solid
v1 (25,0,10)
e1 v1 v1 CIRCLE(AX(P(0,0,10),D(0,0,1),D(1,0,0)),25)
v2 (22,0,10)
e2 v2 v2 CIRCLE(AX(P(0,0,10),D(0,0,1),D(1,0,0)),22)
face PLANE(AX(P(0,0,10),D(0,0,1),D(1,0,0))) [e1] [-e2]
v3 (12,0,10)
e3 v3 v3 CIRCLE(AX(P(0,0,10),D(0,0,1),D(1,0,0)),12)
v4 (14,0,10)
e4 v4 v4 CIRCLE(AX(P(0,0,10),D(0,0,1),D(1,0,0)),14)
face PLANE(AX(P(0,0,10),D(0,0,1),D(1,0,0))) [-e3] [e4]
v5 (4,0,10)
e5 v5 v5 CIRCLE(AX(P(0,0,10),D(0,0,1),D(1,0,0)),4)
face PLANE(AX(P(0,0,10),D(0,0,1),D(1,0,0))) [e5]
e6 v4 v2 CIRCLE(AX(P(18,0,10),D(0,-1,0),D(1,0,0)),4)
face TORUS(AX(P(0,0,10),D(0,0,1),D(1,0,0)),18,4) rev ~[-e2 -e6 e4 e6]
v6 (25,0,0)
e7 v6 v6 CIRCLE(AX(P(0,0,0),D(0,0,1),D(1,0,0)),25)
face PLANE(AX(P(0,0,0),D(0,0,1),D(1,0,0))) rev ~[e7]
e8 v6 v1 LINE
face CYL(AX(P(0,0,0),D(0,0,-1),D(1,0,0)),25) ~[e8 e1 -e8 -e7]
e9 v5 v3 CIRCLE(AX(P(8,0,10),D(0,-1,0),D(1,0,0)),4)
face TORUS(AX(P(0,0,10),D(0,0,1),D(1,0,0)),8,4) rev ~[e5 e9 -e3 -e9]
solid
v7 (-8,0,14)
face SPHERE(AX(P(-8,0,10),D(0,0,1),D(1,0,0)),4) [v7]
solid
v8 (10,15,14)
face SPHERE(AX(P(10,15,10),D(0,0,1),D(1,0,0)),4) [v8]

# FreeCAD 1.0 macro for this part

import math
import FreeCAD as App
import Part
import Sketcher
from FreeCAD import Vector

doc = App.newDocument("Part")
body = doc.addObject("PartDesign::Body", "Body")

# Sketch on XZ plane
sketch1 = doc.addObject("Sketcher::SketchObject", "Sketch")
body.addObject(sketch1)
sketch1.AttachmentSupport = (doc.XZ_Plane, [""])
sketch1.MapMode = "FlatFace"
sketch1.addGeometry(Part.Circle(Vector(18, 0, 0), Vector(0, 0, 1), 4), False)
sketch1.addConstraint([
    Sketcher.Constraint("PointOnObject", 0, 3, -1),
    Sketcher.Constraint("Diameter", 0, 8.0),
    Sketcher.Constraint("DistanceX", -1, 1, 0, 3, 18.0),
])
revolution = doc.addObject("PartDesign::Revolution", "Revolution")
body.addObject(revolution)
revolution.Profile = sketch1
revolution.ReferenceAxis = (sketch1, ["V_Axis"])
revolution.Angle = 360
body2 = doc.addObject("PartDesign::Body", "Body001")
body2.AllowCompound = True

# Sketch on XZ plane
sketch2 = doc.addObject("Sketcher::SketchObject", "Sketch001")
body2.addObject(sketch2)
sketch2.AttachmentSupport = (doc.getObject("XZ_Plane001"), [""])
sketch2.MapMode = "FlatFace"
sketch2.addGeometry(Part.Circle(Vector(8, 0, 0), Vector(0, 0, 1), 4), False)
sketch2.addConstraint([
    Sketcher.Constraint("PointOnObject", 0, 3, -1),
    Sketcher.Constraint("Diameter", 0, 8.0),
    Sketcher.Constraint("DistanceX", -1, 1, 0, 3, 8.0),
])
revolution2 = doc.addObject("PartDesign::Revolution", "Revolution001")
body2.addObject(revolution2)
revolution2.Profile = sketch2
revolution2.ReferenceAxis = (sketch2, ["V_Axis"])
revolution2.Angle = 360
doc.recompute()

boolean = doc.addObject("PartDesign::Boolean", "Boolean")
body2.addObject(boolean)
boolean.Type = "Fuse"
boolean.addObjects([body])
body3 = doc.addObject("PartDesign::Body", "Body002")
body3.AllowCompound = True
doc.recompute()

body2.Placement = App.Placement(Vector(0, 0, 10), App.Rotation(Vector(0, 0, 1), 0))
boolean2 = doc.addObject("PartDesign::Boolean", "Boolean001")
body3.addObject(boolean2)
boolean2.Type = "Fuse"
boolean2.addObjects([body2])
body4 = doc.addObject("PartDesign::Body", "Body003")

# Sketch on XY plane
sketch3 = doc.addObject("Sketcher::SketchObject", "Sketch002")
body4.addObject(sketch3)
sketch3.AttachmentSupport = (doc.getObject("XY_Plane003"), [""])
sketch3.MapMode = "FlatFace"
sketch3.addGeometry(Part.Circle(Vector(0, 0, 0), Vector(0, 0, 1), 25), False)
sketch3.addConstraint([
    Sketcher.Constraint("Coincident", 0, 3, -1, 1),
    Sketcher.Constraint("Diameter", 0, 50.0),
])
pad1 = doc.addObject("PartDesign::Pad", "Pad")
body4.addObject(pad1)
pad1.Profile = sketch3
pad1.Length = 10
doc.recompute()

boolean3 = doc.addObject("PartDesign::Boolean", "Boolean002")
body4.addObject(boolean3)
boolean3.Type = "Cut"
boolean3.addObjects([body3])
body5 = doc.addObject("PartDesign::Body", "Body004")

# Sketch on XZ plane
sketch4 = doc.addObject("Sketcher::SketchObject", "Sketch003")
body5.addObject(sketch4)
sketch4.AttachmentSupport = (doc.getObject("XZ_Plane004"), [""])
sketch4.MapMode = "FlatFace"
sketch4.addGeometry([
    Part.ArcOfCircle(Part.Circle(Vector(-8, 10, 0), Vector(0, 0, 1), 4), math.radians(-90), math.radians(90)),
    Part.LineSegment(Vector(-8, 14, 0), Vector(-8, 6, 0)),
], False)
sketch4.addGeometry(Part.LineSegment(Vector(-8, 6, 0), Vector(-8, 14, 0)), True)  # axis
sketch4.addConstraint([
    Sketcher.Constraint("Coincident", 0, 1, 1, 2),
    Sketcher.Constraint("Coincident", 1, 1, 0, 2),
    Sketcher.Constraint("Vertical", 1),
    Sketcher.Constraint("Vertical", 2),
    Sketcher.Constraint("Coincident", 2, 1, 0, 1),
    Sketcher.Constraint("Equal", 1, 2),
    Sketcher.Constraint("Radius", 0, 4.0),
    Sketcher.Constraint("DistanceX", 0, 3, -1, 1, 8.0),
    Sketcher.Constraint("DistanceY", -1, 1, 0, 3, 10.0),
    Sketcher.Constraint("DistanceX", 0, 1, -1, 1, 8.0),
])
revolution3 = doc.addObject("PartDesign::Revolution", "Revolution002")
body5.addObject(revolution3)
revolution3.Profile = sketch4
revolution3.ReferenceAxis = (sketch4, ["Axis0"])
revolution3.Angle = 360
body6 = doc.addObject("PartDesign::Body", "Body005")

# Sketch on XZ plane
sketch5 = doc.addObject("Sketcher::SketchObject", "Sketch004")
body6.addObject(sketch5)
sketch5.AttachmentSupport = (doc.getObject("XZ_Plane005"), [""])
sketch5.MapMode = "FlatFace"
sketch5.AttachmentOffset = App.Placement(Vector(0, 0, -15), App.Rotation())
sketch5.addGeometry([
    Part.ArcOfCircle(Part.Circle(Vector(10, 10, 0), Vector(0, 0, 1), 4), math.radians(-90), math.radians(90)),
    Part.LineSegment(Vector(10, 14, 0), Vector(10, 6, 0)),
], False)
sketch5.addGeometry(Part.LineSegment(Vector(10, 6, 0), Vector(10, 14, 0)), True)  # axis
sketch5.addConstraint([
    Sketcher.Constraint("Coincident", 0, 1, 1, 2),
    Sketcher.Constraint("Coincident", 1, 1, 0, 2),
    Sketcher.Constraint("Vertical", 1),
    Sketcher.Constraint("Vertical", 2),
    Sketcher.Constraint("Coincident", 2, 1, 0, 1),
    Sketcher.Constraint("Equal", 1, 2),
    Sketcher.Constraint("Radius", 0, 4.0),
    Sketcher.Constraint("DistanceX", -1, 1, 0, 3, 10.0),
    Sketcher.Constraint("DistanceY", -1, 1, 0, 3, 10.0),
    Sketcher.Constraint("DistanceX", -1, 1, 0, 1, 10.0),
])
revolution4 = doc.addObject("PartDesign::Revolution", "Revolution003")
body6.addObject(revolution4)
revolution4.Profile = sketch5
revolution4.ReferenceAxis = (sketch5, ["Axis0"])
revolution4.Angle = 360

doc.recompute()
